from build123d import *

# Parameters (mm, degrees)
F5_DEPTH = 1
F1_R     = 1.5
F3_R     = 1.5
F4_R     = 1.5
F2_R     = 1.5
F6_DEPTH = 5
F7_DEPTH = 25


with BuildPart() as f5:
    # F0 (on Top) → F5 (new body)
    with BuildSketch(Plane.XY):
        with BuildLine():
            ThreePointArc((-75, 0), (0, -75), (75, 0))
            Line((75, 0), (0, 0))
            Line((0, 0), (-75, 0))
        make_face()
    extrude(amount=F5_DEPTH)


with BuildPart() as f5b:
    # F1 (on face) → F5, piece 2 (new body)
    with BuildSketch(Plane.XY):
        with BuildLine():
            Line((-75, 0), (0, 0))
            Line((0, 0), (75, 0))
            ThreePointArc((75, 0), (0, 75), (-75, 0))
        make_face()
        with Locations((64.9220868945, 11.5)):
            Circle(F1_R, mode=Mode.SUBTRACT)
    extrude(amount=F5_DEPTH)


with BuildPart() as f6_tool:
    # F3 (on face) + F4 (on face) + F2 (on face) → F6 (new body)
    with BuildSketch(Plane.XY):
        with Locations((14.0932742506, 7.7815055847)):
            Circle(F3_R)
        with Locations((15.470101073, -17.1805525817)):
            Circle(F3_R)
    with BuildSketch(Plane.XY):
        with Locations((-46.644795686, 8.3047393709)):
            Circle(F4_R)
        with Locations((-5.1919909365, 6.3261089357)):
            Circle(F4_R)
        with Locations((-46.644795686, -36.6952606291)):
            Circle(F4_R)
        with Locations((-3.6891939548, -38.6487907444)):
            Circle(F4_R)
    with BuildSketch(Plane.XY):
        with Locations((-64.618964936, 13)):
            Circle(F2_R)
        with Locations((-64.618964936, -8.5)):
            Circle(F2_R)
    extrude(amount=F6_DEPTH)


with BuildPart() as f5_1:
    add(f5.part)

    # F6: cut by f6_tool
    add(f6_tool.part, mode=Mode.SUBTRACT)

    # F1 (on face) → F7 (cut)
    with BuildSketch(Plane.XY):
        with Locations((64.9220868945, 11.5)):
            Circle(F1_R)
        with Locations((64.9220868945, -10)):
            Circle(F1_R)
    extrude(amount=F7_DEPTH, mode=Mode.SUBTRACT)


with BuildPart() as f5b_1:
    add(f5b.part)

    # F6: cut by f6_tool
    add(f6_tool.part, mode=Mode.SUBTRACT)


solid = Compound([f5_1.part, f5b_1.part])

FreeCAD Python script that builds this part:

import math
import FreeCAD as App
import Part
import Sketcher
from FreeCAD import Vector
Q = App.Units.Quantity

doc = App.newDocument("Part")
body = doc.addObject("PartDesign::Body", "Body")

# Sketch on XY plane
sketch1 = doc.addObject("Sketcher::SketchObject", "Sketch")
body.addObject(sketch1)
sketch1.AttachmentSupport = (doc.XY_Plane, [""])
sketch1.MapMode = "FlatFace"
sketch1.addGeometry(Part.ArcOfCircle(Part.Circle(Vector(0, 0, 0), Vector(0, 0, 1), 75), math.radians(180), math.radians(360)), False)
sketch1.addGeometry(Part.LineSegment(Vector(75, 0, 0), Vector(-75, 0, 0)), False)
sketch1.addConstraint(Sketcher.Constraint("Coincident", 0, 1, 1, 2))
sketch1.addConstraint(Sketcher.Constraint("Coincident", 1, 1, 0, 2))
sketch1.addConstraint(Sketcher.Constraint("Horizontal", 1))
sketch1.addConstraint(Sketcher.Constraint("Coincident", 0, 3, -1, 1))
sketch1.addConstraint(Sketcher.Constraint("PointOnObject", 0, 1, -1))
sketch1.addConstraint(Sketcher.Constraint("Radius", 0, Q("75 mm")))
pad1 = doc.addObject("PartDesign::Pad", "Pad")
body.addObject(pad1)
pad1.Profile = sketch1
pad1.Length = 1
body2 = doc.addObject("PartDesign::Body", "Body001")

# Sketch on XY plane
sketch2 = doc.addObject("Sketcher::SketchObject", "Sketch001")
body2.addObject(sketch2)
sketch2.AttachmentSupport = (doc.getObject("XY_Plane001"), [""])
sketch2.MapMode = "FlatFace"
sketch2.addGeometry(Part.LineSegment(Vector(-75, 0, 0), Vector(75, 0, 0)), False)
sketch2.addGeometry(Part.ArcOfCircle(Part.Circle(Vector(0, 0, 0), Vector(0, 0, 1), 75), math.radians(0), math.radians(180)), False)
sketch2.addGeometry(Part.Circle(Vector(64.9, 11.5, 0), Vector(0, 0, 1), 1.5), False)
sketch2.addConstraint(Sketcher.Constraint("Coincident", 0, 1, 1, 2))
sketch2.addConstraint(Sketcher.Constraint("Coincident", 1, 1, 0, 2))
sketch2.addConstraint(Sketcher.Constraint("Horizontal", 0))
sketch2.addConstraint(Sketcher.Constraint("Coincident", 1, 3, -1, 1))
sketch2.addConstraint(Sketcher.Constraint("PointOnObject", 0, 1, -1))
sketch2.addConstraint(Sketcher.Constraint("Diameter", 2, Q("3 mm")))
sketch2.addConstraint(Sketcher.Constraint("Radius", 1, Q("75 mm")))
sketch2.addConstraint(Sketcher.Constraint("DistanceY", -1, 1, 2, 3, Q("11.5 mm")))
sketch2.addConstraint(Sketcher.Constraint("DistanceX", -1, 1, 2, 3, Q("64.922087 mm")))
pad2 = doc.addObject("PartDesign::Pad", "Pad001")
body2.addObject(pad2)
pad2.Profile = sketch2
pad2.Length = 1
body3 = doc.addObject("PartDesign::Body", "Body002")
body3.AllowCompound = True

# Sketch on XY plane
sketch3 = doc.addObject("Sketcher::SketchObject", "Sketch002")
body3.addObject(sketch3)
sketch3.AttachmentSupport = (doc.getObject("XY_Plane002"), [""])
sketch3.MapMode = "FlatFace"
sketch3.addGeometry(Part.Circle(Vector(14.1, 7.8, 0), Vector(0, 0, 1), 1.5), False)
sketch3.addGeometry(Part.Circle(Vector(15.5, -17.2, 0), Vector(0, 0, 1), 1.5), False)
sketch3.addGeometry(Part.Circle(Vector(-46.6, 8.3, 0), Vector(0, 0, 1), 1.5), False)
sketch3.addGeometry(Part.Circle(Vector(-5.2, 6.3, 0), Vector(0, 0, 1), 1.5), False)
sketch3.addGeometry(Part.Circle(Vector(-46.6, -36.7, 0), Vector(0, 0, 1), 1.5), False)
sketch3.addGeometry(Part.Circle(Vector(-3.7, -38.6, 0), Vector(0, 0, 1), 1.5), False)
sketch3.addGeometry(Part.Circle(Vector(-64.6, 13, 0), Vector(0, 0, 1), 1.5), False)
sketch3.addGeometry(Part.Circle(Vector(-64.6, -8.5, 0), Vector(0, 0, 1), 1.5), False)
sketch3.addConstraint(Sketcher.Constraint("Equal", 0, 1))
sketch3.addConstraint(Sketcher.Constraint("Equal", 1, 2))
sketch3.addConstraint(Sketcher.Constraint("Equal", 2, 3))
sketch3.addConstraint(Sketcher.Constraint("Equal", 3, 4))
sketch3.addConstraint(Sketcher.Constraint("Equal", 4, 5))
sketch3.addConstraint(Sketcher.Constraint("Equal", 5, 6))
sketch3.addConstraint(Sketcher.Constraint("Equal", 6, 7))
sketch3.addConstraint(Sketcher.Constraint("Vertical", 2, 3, 4, 3))
sketch3.addConstraint(Sketcher.Constraint("Vertical", 6, 3, 7, 3))
sketch3.addConstraint(Sketcher.Constraint("Diameter", 0, Q("3 mm")))
sketch3.addConstraint(Sketcher.Constraint("DistanceY", -1, 1, 6, 3, Q("13 mm")))
sketch3.addConstraint(Sketcher.Constraint("DistanceY", 4, 3, 2, 3, Q("45 mm")))
sketch3.addConstraint(Sketcher.Constraint("DistanceY", 7, 3, -1, 1, Q("8.5 mm")))
sketch3.addConstraint(Sketcher.Constraint("DistanceX", -1, 1, 1, 3, Q("15.470101 mm")))
sketch3.addConstraint(Sketcher.Constraint("DistanceX", 4, 3, 5, 3, Q("42.955602 mm")))
sketch3.addConstraint(Sketcher.Constraint("DistanceY", 5, 3, 3, 3, Q("44.9749 mm")))
sketch3.addConstraint(Sketcher.Constraint("DistanceY", -1, 1, 2, 3, Q("8.304739 mm")))
sketch3.addConstraint(Sketcher.Constraint("DistanceX", 3, 3, -1, 1, Q("5.191991 mm")))
sketch3.addConstraint(Sketcher.Constraint("DistanceY", -1, 1, 3, 3, Q("6.326109 mm")))
sketch3.addConstraint(Sketcher.Constraint("DistanceY", 1, 3, 0, 3, Q("24.962058 mm")))
sketch3.addConstraint(Sketcher.Constraint("DistanceX", 2, 3, 0, 3, Q("60.73807 mm")))
sketch3.addConstraint(Sketcher.Constraint("DistanceY", 1, 3, 2, 3, Q("25.485292 mm")))
sketch3.addConstraint(Sketcher.Constraint("DistanceX", 6, 3, 2, 3, Q("17.974169 mm")))
sketch3.addConstraint(Sketcher.Constraint("DistanceX", -1, 1, 0, 3, Q("14.093274 mm")))
pad3 = doc.addObject("PartDesign::Pad", "Pad002")
body3.addObject(pad3)
pad3.Profile = sketch3
pad3.Length = 5
doc.recompute()

body4 = doc.addObject("PartDesign::Body", "Body003")
body4.BaseFeature = body3
boolean = doc.addObject("PartDesign::Boolean", "Boolean")
body.addObject(boolean)
boolean.Type = "Cut"
boolean.addObjects([body4])
doc.recompute()

# Sketch on XY plane
sketch4 = doc.addObject("Sketcher::SketchObject", "Sketch003")
body.addObject(sketch4)
sketch4.AttachmentSupport = (doc.XY_Plane, [""])
sketch4.MapMode = "FlatFace"
sketch4.addGeometry(Part.Circle(Vector(64.9, 11.5, 0), Vector(0, 0, 1), 1.5), False)
sketch4.addGeometry(Part.Circle(Vector(64.9, -10, 0), Vector(0, 0, 1), 1.5), False)
sketch4.addConstraint(Sketcher.Constraint("Equal", 0, 1))
sketch4.addConstraint(Sketcher.Constraint("Vertical", 0, 3, 1, 3))
sketch4.addConstraint(Sketcher.Constraint("Diameter", 0, Q("3 mm")))
sketch4.addConstraint(Sketcher.Constraint("DistanceY", 1, 3, -1, 1, Q("10 mm")))
sketch4.addConstraint(Sketcher.Constraint("DistanceY", -1, 1, 0, 3, Q("11.5 mm")))
sketch4.addConstraint(Sketcher.Constraint("DistanceX", -1, 1, 0, 3, Q("64.922087 mm")))
pocket1 = doc.addObject("PartDesign::Pocket", "Pocket")
body.addObject(pocket1)
pocket1.Profile = sketch4
pocket1.Length = 25
pocket1.Reversed = True
doc.recompute()

boolean2 = doc.addObject("PartDesign::Boolean", "Boolean001")
body2.addObject(boolean2)
boolean2.Type = "Cut"
boolean2.addObjects([body3])

doc.recompute()
